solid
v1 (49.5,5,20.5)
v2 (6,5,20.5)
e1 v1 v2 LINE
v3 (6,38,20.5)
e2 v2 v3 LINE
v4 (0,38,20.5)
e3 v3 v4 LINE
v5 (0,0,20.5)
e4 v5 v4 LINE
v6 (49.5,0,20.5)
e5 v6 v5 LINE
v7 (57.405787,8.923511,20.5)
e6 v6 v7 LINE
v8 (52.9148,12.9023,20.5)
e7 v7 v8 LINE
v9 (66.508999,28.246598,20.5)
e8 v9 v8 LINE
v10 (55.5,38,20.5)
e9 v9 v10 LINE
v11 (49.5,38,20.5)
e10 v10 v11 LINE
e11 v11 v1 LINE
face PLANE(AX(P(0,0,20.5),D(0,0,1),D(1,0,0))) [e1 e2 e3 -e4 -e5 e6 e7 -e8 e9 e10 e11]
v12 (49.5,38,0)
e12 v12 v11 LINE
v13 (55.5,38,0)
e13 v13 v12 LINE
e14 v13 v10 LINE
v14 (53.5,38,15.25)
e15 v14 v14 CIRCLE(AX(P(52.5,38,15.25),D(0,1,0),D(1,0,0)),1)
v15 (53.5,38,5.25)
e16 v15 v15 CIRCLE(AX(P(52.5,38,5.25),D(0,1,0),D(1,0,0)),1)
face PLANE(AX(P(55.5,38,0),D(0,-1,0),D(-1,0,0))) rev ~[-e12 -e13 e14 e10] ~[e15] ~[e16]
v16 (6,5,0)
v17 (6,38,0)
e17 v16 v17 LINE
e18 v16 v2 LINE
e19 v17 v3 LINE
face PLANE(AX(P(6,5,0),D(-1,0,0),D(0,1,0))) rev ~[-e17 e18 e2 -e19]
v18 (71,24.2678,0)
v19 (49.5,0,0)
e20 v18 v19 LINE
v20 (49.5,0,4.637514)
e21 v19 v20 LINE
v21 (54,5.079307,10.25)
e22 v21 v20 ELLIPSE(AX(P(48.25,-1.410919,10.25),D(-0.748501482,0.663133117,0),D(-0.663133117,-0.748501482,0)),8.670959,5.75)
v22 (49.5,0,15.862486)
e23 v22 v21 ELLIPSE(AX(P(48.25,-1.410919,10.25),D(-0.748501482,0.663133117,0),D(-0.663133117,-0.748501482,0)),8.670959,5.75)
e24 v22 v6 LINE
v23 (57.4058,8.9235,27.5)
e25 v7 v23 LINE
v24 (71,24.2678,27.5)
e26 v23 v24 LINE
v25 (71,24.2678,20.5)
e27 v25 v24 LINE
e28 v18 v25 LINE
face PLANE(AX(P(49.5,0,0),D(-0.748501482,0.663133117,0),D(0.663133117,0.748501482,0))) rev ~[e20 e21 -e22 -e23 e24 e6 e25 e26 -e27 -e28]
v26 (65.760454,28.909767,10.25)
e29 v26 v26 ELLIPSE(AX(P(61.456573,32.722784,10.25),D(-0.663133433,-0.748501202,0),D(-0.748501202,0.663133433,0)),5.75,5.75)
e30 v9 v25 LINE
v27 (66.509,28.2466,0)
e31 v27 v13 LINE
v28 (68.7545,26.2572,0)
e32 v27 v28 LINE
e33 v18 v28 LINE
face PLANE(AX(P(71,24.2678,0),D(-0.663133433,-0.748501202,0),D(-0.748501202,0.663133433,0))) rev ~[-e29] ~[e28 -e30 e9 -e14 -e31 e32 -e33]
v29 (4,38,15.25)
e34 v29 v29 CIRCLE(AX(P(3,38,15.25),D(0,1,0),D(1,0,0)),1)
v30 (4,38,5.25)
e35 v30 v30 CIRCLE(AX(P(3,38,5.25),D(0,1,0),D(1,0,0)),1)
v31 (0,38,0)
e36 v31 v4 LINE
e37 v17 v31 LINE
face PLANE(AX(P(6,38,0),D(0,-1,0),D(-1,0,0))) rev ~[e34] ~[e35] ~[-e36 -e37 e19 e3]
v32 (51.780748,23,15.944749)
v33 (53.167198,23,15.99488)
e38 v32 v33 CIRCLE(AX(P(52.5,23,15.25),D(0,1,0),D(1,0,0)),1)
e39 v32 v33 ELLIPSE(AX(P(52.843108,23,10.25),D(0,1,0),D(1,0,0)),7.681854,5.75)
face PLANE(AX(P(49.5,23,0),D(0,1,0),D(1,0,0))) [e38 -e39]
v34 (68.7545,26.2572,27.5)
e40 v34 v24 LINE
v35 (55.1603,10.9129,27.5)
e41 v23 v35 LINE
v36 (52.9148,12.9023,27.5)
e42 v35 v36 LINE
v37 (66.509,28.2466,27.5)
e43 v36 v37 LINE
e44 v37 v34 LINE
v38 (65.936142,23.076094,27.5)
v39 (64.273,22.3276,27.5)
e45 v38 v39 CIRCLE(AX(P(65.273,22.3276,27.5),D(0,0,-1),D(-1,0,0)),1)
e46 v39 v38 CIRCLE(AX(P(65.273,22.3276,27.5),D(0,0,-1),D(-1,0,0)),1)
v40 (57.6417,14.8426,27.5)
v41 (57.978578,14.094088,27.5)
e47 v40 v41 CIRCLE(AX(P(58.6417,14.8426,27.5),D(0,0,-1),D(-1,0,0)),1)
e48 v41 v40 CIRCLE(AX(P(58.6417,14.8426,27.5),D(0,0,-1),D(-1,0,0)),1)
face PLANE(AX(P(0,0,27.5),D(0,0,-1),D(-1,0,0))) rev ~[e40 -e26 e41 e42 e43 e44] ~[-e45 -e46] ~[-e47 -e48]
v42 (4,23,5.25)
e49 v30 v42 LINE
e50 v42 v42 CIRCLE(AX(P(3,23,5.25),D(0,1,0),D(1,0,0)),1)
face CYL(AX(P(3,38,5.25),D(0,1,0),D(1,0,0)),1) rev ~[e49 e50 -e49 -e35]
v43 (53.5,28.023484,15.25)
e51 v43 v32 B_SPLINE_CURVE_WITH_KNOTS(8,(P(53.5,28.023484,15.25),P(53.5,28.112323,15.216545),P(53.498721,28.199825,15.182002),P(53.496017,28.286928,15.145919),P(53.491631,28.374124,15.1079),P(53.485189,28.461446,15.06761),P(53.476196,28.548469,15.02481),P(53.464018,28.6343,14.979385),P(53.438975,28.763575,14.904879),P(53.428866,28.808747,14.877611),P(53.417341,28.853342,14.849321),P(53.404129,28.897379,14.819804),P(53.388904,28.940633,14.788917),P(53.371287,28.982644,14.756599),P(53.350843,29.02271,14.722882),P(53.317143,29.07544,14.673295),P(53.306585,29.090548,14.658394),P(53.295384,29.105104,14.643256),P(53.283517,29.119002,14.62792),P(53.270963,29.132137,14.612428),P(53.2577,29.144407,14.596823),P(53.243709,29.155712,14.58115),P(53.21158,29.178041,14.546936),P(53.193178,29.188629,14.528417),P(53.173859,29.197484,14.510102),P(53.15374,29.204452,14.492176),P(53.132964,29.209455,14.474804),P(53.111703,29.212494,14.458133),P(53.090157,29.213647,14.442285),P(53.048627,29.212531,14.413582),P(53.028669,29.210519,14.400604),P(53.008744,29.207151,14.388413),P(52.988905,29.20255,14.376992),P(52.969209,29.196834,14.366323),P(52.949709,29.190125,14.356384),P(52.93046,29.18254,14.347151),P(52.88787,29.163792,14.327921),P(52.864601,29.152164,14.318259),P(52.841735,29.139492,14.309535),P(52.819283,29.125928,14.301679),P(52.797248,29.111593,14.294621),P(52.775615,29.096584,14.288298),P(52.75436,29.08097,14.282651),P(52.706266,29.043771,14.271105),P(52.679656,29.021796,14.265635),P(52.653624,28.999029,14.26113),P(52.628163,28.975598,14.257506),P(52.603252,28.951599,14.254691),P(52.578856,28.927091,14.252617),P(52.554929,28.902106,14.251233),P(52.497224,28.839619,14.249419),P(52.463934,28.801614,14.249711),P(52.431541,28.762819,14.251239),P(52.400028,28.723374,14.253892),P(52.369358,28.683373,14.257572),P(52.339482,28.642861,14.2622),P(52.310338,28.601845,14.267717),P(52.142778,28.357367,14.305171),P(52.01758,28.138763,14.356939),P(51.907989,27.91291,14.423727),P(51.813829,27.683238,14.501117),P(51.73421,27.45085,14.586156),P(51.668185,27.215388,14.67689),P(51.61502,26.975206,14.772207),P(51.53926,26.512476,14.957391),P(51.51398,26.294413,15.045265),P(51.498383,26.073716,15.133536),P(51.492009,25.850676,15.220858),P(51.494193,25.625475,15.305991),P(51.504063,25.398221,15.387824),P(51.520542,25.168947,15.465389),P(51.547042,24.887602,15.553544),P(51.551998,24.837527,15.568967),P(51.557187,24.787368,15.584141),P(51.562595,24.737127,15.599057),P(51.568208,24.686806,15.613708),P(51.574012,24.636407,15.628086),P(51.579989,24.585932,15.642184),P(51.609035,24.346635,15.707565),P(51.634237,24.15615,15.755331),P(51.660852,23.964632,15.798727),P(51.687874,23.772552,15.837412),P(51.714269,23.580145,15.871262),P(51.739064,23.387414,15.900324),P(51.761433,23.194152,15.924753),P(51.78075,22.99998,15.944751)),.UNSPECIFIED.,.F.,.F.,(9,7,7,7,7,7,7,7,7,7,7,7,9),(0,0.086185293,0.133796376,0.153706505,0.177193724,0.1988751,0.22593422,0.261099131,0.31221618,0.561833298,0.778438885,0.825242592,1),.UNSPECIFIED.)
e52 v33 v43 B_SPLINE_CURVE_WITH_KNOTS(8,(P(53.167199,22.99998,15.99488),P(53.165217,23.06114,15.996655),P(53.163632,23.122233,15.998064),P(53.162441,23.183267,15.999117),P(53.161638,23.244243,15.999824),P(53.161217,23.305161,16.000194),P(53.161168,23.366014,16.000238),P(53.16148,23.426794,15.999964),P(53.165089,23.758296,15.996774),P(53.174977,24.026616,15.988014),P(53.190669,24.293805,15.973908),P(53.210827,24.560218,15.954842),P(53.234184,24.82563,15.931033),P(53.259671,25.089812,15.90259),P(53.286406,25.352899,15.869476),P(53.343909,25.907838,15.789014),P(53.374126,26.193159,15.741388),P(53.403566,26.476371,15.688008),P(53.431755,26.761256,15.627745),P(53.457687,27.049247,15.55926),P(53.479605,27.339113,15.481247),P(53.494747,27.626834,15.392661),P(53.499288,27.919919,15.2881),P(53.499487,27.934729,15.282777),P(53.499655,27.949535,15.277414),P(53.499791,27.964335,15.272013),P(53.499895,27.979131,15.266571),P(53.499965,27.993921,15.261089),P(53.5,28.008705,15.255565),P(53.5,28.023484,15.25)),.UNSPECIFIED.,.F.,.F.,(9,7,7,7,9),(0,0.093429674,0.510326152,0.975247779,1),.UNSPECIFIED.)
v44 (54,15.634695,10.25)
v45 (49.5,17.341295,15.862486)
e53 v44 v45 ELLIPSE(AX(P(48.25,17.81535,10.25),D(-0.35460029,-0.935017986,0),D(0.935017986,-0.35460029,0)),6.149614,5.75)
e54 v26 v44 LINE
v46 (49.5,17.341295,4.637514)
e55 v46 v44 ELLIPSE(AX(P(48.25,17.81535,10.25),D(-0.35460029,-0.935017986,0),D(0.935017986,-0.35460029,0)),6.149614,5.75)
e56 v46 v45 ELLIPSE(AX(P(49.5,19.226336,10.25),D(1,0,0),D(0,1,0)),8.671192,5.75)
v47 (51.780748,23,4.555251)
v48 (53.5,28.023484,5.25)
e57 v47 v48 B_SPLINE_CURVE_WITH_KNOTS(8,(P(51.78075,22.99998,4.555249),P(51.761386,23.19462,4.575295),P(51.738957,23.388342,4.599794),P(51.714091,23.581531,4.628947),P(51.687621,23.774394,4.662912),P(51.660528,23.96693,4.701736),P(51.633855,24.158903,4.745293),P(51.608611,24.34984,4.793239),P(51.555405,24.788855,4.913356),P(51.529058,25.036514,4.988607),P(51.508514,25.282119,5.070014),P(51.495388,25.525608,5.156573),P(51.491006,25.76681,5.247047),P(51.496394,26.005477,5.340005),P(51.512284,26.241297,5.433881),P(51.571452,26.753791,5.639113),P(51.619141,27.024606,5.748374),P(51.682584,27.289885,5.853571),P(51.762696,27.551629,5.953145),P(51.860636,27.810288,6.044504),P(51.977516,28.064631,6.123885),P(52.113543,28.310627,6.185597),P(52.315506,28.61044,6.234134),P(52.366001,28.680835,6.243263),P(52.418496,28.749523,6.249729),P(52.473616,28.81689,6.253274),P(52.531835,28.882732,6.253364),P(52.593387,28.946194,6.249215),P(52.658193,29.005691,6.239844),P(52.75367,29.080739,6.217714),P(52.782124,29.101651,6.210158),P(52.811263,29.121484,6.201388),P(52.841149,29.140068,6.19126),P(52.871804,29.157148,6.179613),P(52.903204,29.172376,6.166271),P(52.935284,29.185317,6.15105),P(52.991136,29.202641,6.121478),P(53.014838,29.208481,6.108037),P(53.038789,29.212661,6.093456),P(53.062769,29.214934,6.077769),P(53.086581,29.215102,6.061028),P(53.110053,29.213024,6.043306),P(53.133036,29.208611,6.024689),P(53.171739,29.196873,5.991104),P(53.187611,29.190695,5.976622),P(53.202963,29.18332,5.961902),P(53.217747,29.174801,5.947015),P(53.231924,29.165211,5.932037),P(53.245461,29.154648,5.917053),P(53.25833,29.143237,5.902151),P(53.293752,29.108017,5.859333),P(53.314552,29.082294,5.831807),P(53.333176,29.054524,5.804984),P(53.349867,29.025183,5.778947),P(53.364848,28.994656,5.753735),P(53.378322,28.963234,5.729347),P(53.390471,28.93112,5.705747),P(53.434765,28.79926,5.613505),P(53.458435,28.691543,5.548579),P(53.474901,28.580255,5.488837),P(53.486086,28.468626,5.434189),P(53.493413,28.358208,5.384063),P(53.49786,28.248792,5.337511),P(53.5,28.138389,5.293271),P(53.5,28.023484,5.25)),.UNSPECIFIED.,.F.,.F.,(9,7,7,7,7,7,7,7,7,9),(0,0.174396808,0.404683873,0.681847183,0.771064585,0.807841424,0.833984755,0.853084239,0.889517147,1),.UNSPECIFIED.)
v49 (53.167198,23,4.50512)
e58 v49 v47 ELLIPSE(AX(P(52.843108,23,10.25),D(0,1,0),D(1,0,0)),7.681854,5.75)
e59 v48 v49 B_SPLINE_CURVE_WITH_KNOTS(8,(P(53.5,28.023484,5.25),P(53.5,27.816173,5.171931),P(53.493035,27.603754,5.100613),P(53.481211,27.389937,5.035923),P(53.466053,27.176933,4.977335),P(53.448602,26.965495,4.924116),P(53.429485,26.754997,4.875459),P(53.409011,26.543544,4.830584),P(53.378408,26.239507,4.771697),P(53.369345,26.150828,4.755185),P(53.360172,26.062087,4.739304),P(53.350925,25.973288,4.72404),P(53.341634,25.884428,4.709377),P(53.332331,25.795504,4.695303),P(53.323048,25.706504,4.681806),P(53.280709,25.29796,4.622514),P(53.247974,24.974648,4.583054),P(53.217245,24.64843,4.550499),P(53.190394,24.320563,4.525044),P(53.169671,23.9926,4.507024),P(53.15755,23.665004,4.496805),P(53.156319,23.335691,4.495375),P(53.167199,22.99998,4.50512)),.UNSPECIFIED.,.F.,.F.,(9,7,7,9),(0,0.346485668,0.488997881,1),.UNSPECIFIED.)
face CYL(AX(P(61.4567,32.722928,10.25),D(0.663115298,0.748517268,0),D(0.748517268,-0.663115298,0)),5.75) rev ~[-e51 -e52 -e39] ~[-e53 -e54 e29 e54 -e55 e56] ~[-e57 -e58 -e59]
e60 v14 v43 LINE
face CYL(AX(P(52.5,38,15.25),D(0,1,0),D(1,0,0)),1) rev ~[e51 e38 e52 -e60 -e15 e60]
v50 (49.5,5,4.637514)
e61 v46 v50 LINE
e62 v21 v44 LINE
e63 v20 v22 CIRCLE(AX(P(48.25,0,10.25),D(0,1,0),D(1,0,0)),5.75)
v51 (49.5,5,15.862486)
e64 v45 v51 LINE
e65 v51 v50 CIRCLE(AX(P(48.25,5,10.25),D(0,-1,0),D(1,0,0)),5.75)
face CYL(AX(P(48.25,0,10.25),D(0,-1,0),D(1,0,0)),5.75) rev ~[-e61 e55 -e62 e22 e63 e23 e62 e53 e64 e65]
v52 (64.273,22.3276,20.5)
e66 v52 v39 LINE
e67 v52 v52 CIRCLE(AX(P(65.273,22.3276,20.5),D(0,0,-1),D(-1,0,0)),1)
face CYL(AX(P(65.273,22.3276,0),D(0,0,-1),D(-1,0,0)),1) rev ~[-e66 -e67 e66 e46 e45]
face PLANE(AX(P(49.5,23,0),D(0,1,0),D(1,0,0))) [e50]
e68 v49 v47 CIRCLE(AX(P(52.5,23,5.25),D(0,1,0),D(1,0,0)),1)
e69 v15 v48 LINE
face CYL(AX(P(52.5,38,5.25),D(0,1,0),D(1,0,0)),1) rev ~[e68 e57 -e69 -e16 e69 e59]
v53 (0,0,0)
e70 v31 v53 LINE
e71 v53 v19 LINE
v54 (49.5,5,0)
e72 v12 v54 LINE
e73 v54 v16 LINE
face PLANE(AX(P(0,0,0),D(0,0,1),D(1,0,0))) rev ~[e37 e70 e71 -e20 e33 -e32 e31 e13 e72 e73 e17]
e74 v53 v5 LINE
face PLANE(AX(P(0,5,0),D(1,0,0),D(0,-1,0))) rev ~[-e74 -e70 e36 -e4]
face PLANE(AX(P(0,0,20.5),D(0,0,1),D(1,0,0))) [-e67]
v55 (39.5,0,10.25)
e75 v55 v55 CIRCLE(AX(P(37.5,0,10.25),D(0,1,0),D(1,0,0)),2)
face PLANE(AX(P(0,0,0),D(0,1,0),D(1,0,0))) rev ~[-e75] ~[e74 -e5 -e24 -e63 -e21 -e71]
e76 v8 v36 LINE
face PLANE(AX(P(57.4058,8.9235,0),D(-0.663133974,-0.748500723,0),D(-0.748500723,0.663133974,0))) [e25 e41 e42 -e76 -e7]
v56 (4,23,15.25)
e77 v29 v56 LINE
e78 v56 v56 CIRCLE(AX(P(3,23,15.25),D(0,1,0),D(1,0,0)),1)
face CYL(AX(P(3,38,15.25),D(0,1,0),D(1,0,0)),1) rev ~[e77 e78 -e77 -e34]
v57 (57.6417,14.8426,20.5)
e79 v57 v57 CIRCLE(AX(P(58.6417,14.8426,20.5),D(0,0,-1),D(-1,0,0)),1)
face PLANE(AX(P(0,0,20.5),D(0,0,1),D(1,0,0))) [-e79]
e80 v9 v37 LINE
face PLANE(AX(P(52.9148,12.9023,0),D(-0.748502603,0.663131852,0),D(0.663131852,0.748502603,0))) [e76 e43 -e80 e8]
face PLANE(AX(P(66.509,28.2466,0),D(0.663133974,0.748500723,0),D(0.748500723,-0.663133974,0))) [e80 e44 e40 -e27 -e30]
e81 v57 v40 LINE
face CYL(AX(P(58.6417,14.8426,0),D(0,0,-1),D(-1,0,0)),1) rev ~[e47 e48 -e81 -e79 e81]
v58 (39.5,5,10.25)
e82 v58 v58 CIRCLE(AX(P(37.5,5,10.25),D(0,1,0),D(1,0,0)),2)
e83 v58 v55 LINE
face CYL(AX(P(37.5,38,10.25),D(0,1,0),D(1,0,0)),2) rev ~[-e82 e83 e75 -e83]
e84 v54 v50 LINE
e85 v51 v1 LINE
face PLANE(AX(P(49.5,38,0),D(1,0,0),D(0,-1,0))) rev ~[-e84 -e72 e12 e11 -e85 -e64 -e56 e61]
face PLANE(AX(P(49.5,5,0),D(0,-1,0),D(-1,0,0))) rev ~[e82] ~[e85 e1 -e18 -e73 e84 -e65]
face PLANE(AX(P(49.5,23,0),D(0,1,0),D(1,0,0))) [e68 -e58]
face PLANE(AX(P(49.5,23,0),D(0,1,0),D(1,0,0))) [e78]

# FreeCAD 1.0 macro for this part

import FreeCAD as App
import Part
import Sketcher
Q = App.Units.Quantity


def add_polygon(sketch, points):
    """Adds a closed chain of lines whose ends are joined by coincident constraints."""
    first, n = sketch.GeometryCount, len(points)
    for a, b in zip(points, points[1:] + points[:1]):
        sketch.addGeometry(Part.LineSegment(App.Vector(*a, 0), App.Vector(*b, 0)), False)
    for i in range(n):
        sketch.addConstraint(Sketcher.Constraint("Coincident", first + i, 2, first + (i + 1) % n, 1))

doc = App.newDocument("Part")
body = doc.addObject("PartDesign::Body", "Body")

# Sketch on XY plane
sketch1 = doc.addObject("Sketcher::SketchObject", "Sketch")
body.addObject(sketch1)
sketch1.AttachmentSupport = (doc.XY_Plane, [""])
sketch1.MapMode = "FlatFace"
add_polygon(sketch1, [(0, 0), (50, 0), (71, 24), (56, 38), (50, 38), (50, 5), (6, 5), (6, 38), (0, 38)])  # lines 0-8
sketch1.addConstraint([
    Sketcher.Constraint("Horizontal", 0),
    Sketcher.Constraint("Horizontal", 3),
    Sketcher.Constraint("Vertical", 4),
    Sketcher.Constraint("Horizontal", 5),
    Sketcher.Constraint("Vertical", 6),
    Sketcher.Constraint("Horizontal", 7),
    Sketcher.Constraint("Vertical", 8),
    Sketcher.Constraint("Coincident", 8, 2, -1, 1),
    Sketcher.Constraint("Perpendicular", 1, 2),
    Sketcher.Constraint("Horizontal", 3, 2, 6, 2),
    Sketcher.Constraint("Vertical", 0, 2, 3, 2),
    Sketcher.Constraint("Equal", 3, 7),
    Sketcher.Constraint("DistanceX", 3, 2, 3, 1, Q("6 mm")),
    Sketcher.Constraint("DistanceY", 8, 2, 8, 1, Q("38 mm")),
    Sketcher.Constraint("DistanceX", 5, 2, 5, 1, Q("43.5 mm")),
    Sketcher.Constraint("DistanceX", -1, 1, 1, 2, Q("71 mm")),
    Sketcher.Constraint("DistanceY", -1, 1, 4, 2, Q("5 mm")),
])
pad1 = doc.addObject("PartDesign::Pad", "Pad")
body.addObject(pad1)
pad1.Profile = sketch1
pad1.Length = 20.5

# Sketch on XY plane
sketch2 = doc.addObject("Sketcher::SketchObject", "Sketch001")
body.addObject(sketch2)
sketch2.AttachmentSupport = (doc.XY_Plane, [""])
sketch2.MapMode = "FlatFace"
add_polygon(sketch2, [(71, 24.3), (57.4, 8.9), (55.2, 10.9), (52.9, 12.9), (66.5, 28.2), (68.8, 26.3)])  # lines 0-5
sketch2.addGeometry(Part.Circle(App.Vector(58.6, 14.8, 0), App.Vector(0, 0, 1), 1), False)  # 6
sketch2.addGeometry(Part.Circle(App.Vector(65.3, 22.3, 0), App.Vector(0, 0, 1), 1), False)  # 7
sketch2.addConstraint([
    Sketcher.Constraint("Equal", 6, 7),
    Sketcher.Constraint("Perpendicular", 0, 1),
    Sketcher.Constraint("Parallel", 1, 2),
    Sketcher.Constraint("Perpendicular", 2, 3),
    Sketcher.Constraint("Perpendicular", 3, 4),
    Sketcher.Constraint("Parallel", 4, 5),
    Sketcher.Constraint("Equal", 1, 2),
    Sketcher.Constraint("Equal", 2, 4),
    Sketcher.Constraint("Diameter", 6, Q("2 mm")),
    Sketcher.Constraint("Distance", 0, Q("20.5 mm")),
    Sketcher.Constraint("Distance", 1, Q("3 mm")),
    Sketcher.Constraint("DistanceX", -1, 1, 5, 2, Q("71 mm")),
    Sketcher.Constraint("Angle", 0, Q("-131.5393 deg")),
    Sketcher.Constraint("DistanceX", -1, 1, 7, 3, Q("65.273 mm")),
    Sketcher.Constraint("DistanceY", -1, 1, 1, 2, Q("10.913 mm")),
    Sketcher.Constraint("DistanceY", 6, 3, 7, 3, Q("7.485 mm")),
    Sketcher.Constraint("DistanceX", 0, 2, 6, 3, Q("1.236 mm")),
    Sketcher.Constraint("DistanceY", 0, 2, 6, 3, Q("5.919 mm")),
])
pad2 = doc.addObject("PartDesign::Pad", "Pad001")
body.addObject(pad2)
pad2.Profile = sketch2
pad2.Length = 27.5

# Sketch on XZ plane
sketch3 = doc.addObject("Sketcher::SketchObject", "Sketch002")
body.addObject(sketch3)
sketch3.AttachmentSupport = (doc.XZ_Plane, [""])
sketch3.MapMode = "FlatFace"
sketch3.AttachmentOffset = App.Placement(App.Vector(0, 0, -38), App.Rotation())
sketch3.addGeometry(Part.Circle(App.Vector(37.5, 10.2, 0), App.Vector(0, 0, 1), 2), False)
sketch3.addConstraint([
    Sketcher.Constraint("Diameter", 0, Q("4 mm")),
    Sketcher.Constraint("DistanceX", -1, 1, 0, 3, Q("37.5 mm")),
    Sketcher.Constraint("DistanceY", -1, 1, 0, 3, Q("10.25 mm")),
])
pocket1 = doc.addObject("PartDesign::Pocket", "Pocket")
body.addObject(pocket1)
pocket1.Profile = sketch3
pocket1.Length = 38
pocket1.Reversed = True

# Sketch on XZ plane
sketch4 = doc.addObject("Sketcher::SketchObject", "Sketch003")
body.addObject(sketch4)
sketch4.AttachmentSupport = (doc.XZ_Plane, [""])
sketch4.MapMode = "FlatFace"
sketch4.AttachmentOffset = App.Placement(App.Vector(0, 0, -38), App.Rotation())
sketch4.addGeometry([
    Part.Circle(App.Vector(52.5, 5.2, 0), App.Vector(0, 0, 1), 1),
    Part.Circle(App.Vector(52.5, 15.2, 0), App.Vector(0, 0, 1), 1),
    Part.Circle(App.Vector(3, 5.2, 0), App.Vector(0, 0, 1), 1),
    Part.Circle(App.Vector(3, 15.2, 0), App.Vector(0, 0, 1), 1),
], False)
sketch4.addConstraint([
    Sketcher.Constraint("Equal", 0, 1),
    Sketcher.Constraint("Equal", 1, 2),
    Sketcher.Constraint("Equal", 2, 3),
    Sketcher.Constraint("Horizontal", 0, 3, 2, 3),
    Sketcher.Constraint("Horizontal", 1, 3, 3, 3),
    Sketcher.Constraint("Vertical", 0, 3, 1, 3),
    Sketcher.Constraint("Vertical", 2, 3, 3, 3),
    Sketcher.Constraint("Diameter", 0, Q("2 mm")),
    Sketcher.Constraint("DistanceY", 0, 3, 1, 3, Q("10 mm")),
    Sketcher.Constraint("DistanceX", -1, 1, 2, 3, Q("3 mm")),
    Sketcher.Constraint("DistanceX", -1, 1, 0, 3, Q("52.5 mm")),
    Sketcher.Constraint("DistanceY", -1, 1, 0, 3, Q("5.25 mm")),
])
pocket2 = doc.addObject("PartDesign::Pocket", "Pocket001")
body.addObject(pocket2)
pocket2.Profile = sketch4
pocket2.Length = 15
pocket2.Reversed = True

# Sketch on an angled plane
sketch5 = doc.addObject("Sketcher::SketchObject", "Sketch004")
body.addObject(sketch5)
sketch5.Placement = App.Placement(App.Vector(55.5, 38, 20.5), App.Rotation(App.Vector(0.748517268, -0.663115298, 0), App.Vector(0, 0, -0.999999999), App.Vector(0.663115298, 0.748517268, 0), "ZXY"))
sketch5.addGeometry(Part.Circle(App.Vector(8, 10, 0), App.Vector(0, 0, 1), 6), False)
sketch5.addConstraint([
    Sketcher.Constraint("Diameter", 0, Q("11.5 mm")),
    Sketcher.Constraint("DistanceY", -1, 1, 0, 3, Q("10.25 mm")),
    Sketcher.Constraint("DistanceX", -1, 1, 0, 3, Q("7.958 mm")),
])
pocket3 = doc.addObject("PartDesign::Pocket", "Pocket002")
body.addObject(pocket3)
pocket3.Profile = sketch5
pocket3.Type = "UpToFirst"

# Sketch on XZ plane
sketch6 = doc.addObject("Sketcher::SketchObject", "Sketch005")
body.addObject(sketch6)
sketch6.AttachmentSupport = (doc.XZ_Plane, [""])
sketch6.MapMode = "FlatFace"
sketch6.addGeometry(Part.Circle(App.Vector(48, 10, 0), App.Vector(0, 0, 1), 6), False)
sketch6.addConstraint([
    Sketcher.Constraint("Diameter", 0, Q("11.5 mm")),
    Sketcher.Constraint("DistanceX", -1, 1, 0, 3, Q("48.25 mm")),
    Sketcher.Constraint("DistanceY", -1, 1, 0, 3, Q("10.25 mm")),
])
pocket4 = doc.addObject("PartDesign::Pocket", "Pocket003")
body.addObject(pocket4)
pocket4.Profile = sketch6
pocket4.Length = 17.3413

doc.recompute()
